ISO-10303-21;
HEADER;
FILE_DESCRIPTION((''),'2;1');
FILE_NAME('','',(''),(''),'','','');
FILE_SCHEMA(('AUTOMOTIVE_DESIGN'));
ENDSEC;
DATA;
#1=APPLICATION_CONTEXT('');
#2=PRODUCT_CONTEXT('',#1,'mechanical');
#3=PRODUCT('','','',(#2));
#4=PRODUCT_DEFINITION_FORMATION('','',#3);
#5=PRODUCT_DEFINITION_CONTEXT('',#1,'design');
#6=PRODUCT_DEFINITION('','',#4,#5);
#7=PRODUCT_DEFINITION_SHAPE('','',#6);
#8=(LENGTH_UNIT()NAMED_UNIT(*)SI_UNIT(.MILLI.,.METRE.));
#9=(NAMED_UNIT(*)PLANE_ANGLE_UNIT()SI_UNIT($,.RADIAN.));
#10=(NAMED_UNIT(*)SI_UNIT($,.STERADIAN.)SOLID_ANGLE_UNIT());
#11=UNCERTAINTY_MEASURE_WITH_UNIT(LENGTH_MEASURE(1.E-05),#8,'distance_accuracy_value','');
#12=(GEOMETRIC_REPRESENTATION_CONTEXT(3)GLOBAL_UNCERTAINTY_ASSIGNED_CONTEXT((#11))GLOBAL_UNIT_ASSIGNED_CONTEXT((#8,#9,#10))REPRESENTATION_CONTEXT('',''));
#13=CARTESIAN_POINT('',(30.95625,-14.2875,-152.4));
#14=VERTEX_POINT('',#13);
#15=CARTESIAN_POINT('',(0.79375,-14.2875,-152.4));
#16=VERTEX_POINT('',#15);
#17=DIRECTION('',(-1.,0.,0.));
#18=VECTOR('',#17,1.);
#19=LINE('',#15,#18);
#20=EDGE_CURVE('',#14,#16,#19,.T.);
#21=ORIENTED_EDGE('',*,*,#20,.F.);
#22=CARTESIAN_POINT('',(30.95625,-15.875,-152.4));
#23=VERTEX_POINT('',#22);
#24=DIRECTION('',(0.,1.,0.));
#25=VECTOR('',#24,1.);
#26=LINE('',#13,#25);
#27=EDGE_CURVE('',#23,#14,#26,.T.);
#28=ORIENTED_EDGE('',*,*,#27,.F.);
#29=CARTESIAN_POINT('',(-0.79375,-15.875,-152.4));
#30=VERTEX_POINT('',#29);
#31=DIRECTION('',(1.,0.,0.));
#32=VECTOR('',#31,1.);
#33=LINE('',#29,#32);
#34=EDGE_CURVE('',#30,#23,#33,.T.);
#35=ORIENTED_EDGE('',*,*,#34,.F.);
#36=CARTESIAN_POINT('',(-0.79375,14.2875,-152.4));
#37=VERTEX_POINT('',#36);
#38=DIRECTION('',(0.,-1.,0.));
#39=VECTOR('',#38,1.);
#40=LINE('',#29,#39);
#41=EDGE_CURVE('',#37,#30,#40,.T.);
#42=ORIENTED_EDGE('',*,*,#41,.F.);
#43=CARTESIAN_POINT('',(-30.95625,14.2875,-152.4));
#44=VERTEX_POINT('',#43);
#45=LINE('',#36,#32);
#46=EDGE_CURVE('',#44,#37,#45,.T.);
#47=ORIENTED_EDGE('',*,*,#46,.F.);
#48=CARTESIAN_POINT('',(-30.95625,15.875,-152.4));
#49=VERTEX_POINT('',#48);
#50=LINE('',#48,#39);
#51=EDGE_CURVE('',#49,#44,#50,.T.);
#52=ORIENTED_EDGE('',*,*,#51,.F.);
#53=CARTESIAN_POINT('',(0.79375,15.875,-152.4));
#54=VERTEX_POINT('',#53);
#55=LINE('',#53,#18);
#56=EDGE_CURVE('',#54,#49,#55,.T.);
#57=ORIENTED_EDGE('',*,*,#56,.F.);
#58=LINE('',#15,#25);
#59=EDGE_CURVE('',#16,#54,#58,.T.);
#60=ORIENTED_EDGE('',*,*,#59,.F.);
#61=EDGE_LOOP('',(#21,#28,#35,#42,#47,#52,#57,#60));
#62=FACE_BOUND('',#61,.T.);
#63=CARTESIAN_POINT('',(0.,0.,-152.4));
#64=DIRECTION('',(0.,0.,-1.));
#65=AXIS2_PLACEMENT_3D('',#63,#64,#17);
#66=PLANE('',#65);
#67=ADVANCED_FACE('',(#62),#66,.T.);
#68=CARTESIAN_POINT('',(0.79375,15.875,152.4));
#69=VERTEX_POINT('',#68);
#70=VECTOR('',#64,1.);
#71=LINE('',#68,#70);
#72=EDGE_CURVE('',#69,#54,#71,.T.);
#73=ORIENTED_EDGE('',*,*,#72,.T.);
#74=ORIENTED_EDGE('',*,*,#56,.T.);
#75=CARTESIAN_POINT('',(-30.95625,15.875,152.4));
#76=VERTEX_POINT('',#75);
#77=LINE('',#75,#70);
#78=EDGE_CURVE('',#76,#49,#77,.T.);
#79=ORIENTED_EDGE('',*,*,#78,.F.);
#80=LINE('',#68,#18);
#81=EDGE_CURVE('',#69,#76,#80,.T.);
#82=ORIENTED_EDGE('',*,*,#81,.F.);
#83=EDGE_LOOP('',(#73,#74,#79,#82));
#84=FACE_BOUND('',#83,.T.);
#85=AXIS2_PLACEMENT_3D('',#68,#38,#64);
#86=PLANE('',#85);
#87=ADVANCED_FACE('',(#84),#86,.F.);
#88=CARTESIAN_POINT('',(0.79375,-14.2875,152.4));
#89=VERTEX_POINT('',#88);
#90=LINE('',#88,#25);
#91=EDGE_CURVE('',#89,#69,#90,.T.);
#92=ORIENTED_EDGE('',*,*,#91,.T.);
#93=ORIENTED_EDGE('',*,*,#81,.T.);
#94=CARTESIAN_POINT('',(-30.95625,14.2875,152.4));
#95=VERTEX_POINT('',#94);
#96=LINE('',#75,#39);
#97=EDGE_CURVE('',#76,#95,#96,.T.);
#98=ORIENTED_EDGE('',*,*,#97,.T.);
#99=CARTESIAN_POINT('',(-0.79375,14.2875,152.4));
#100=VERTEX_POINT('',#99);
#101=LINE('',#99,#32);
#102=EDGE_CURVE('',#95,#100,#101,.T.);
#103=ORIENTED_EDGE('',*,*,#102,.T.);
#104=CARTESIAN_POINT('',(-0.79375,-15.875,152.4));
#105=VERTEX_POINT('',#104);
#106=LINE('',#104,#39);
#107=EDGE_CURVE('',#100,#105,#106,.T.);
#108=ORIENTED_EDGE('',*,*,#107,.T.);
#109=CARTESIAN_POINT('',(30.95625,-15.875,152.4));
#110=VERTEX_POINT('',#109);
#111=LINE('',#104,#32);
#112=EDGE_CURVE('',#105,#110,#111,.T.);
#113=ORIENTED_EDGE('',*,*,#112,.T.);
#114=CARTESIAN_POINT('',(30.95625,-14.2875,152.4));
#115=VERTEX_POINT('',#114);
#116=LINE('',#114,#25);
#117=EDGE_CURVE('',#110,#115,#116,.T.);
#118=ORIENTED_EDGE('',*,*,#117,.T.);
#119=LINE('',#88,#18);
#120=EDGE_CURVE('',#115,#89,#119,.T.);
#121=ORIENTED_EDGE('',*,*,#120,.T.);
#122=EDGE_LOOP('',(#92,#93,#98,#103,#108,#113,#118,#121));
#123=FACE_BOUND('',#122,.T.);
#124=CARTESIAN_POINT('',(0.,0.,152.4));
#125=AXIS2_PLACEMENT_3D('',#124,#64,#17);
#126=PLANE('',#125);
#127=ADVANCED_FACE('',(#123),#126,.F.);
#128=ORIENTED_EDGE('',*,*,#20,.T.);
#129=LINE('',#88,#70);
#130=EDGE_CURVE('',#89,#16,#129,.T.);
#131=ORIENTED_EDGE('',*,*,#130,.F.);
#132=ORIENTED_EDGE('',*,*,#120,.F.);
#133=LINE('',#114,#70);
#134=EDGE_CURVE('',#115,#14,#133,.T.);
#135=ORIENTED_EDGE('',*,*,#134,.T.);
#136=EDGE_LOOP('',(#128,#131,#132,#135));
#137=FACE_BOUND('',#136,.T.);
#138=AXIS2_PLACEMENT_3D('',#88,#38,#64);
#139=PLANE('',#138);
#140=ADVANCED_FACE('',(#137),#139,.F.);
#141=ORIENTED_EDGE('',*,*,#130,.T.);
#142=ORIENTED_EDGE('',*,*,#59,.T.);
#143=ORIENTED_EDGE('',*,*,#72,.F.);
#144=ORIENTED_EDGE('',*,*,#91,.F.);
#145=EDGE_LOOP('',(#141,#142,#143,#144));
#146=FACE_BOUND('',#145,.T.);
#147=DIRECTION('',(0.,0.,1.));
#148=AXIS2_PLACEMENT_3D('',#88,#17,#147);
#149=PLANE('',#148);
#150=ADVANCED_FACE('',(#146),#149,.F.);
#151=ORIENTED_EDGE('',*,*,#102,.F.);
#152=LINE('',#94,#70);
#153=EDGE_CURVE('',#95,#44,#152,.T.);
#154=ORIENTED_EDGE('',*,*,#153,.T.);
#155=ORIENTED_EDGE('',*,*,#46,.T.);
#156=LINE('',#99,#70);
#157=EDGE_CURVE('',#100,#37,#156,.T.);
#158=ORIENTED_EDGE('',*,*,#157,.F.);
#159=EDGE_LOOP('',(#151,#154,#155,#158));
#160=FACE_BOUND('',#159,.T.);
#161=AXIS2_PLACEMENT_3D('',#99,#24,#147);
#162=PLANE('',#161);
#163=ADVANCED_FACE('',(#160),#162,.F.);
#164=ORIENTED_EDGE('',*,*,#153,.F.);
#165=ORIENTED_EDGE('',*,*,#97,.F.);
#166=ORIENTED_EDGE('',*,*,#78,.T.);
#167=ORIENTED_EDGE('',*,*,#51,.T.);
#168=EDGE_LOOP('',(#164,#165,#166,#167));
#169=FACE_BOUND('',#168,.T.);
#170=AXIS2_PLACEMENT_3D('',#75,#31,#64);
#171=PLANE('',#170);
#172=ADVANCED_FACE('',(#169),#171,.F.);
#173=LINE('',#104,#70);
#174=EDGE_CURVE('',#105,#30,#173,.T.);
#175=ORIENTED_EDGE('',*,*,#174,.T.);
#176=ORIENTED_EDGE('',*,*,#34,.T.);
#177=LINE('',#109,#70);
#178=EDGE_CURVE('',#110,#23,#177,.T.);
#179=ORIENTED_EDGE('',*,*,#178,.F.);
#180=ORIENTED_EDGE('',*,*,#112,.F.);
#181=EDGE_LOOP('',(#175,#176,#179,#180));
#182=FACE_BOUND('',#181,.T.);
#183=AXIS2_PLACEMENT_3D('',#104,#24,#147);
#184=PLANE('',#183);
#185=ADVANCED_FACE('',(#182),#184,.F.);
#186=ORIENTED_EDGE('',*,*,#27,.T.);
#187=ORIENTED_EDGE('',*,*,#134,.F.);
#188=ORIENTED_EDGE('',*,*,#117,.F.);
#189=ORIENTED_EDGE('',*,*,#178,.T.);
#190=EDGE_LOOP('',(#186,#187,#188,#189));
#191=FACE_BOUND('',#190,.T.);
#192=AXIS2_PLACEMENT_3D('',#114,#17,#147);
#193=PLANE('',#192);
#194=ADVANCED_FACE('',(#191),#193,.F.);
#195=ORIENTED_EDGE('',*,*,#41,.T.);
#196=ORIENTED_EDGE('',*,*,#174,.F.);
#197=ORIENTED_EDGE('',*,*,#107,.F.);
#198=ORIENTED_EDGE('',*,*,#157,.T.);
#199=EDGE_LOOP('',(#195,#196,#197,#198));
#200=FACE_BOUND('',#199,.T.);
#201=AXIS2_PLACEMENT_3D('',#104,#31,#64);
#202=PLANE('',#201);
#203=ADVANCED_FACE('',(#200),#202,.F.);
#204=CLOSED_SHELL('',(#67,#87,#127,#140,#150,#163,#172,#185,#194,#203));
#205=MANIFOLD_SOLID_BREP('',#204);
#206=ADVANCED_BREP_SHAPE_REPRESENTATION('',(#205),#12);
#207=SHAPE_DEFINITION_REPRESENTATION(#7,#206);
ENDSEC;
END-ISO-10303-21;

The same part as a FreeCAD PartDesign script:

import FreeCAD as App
import Part
import Sketcher
Q = App.Units.Quantity


def add_polygon(sketch, points):
    """Adds a closed chain of lines whose ends are joined by coincident constraints."""
    first, n = sketch.GeometryCount, len(points)
    for a, b in zip(points, points[1:] + points[:1]):
        sketch.addGeometry(Part.LineSegment(App.Vector(*a, 0), App.Vector(*b, 0)), False)
    for i in range(n):
        sketch.addConstraint(Sketcher.Constraint("Coincident", first + i, 2, first + (i + 1) % n, 1))

doc = App.newDocument("Part")
body = doc.addObject("PartDesign::Body", "Body")

# Sketch on XY plane
sketch1 = body.newObject("Sketcher::SketchObject", "Sketch")
sketch1.AttachmentSupport = (doc.getObject("XY_Plane"), [""])
sketch1.MapMode = "FlatFace"
add_polygon(sketch1, [(31, -15.9), (31, -14.3), (0.8, -14.3), (0.8, 15.9), (-31, 15.9), (-31, 14.3), (-0.8, 14.3), (-0.8, -15.9)])  # lines 0-7
sketch1.addConstraint(Sketcher.Constraint("Vertical", 0))
sketch1.addConstraint(Sketcher.Constraint("Horizontal", 1))
sketch1.addConstraint(Sketcher.Constraint("Vertical", 2))
sketch1.addConstraint(Sketcher.Constraint("Horizontal", 3))
sketch1.addConstraint(Sketcher.Constraint("Vertical", 4))
sketch1.addConstraint(Sketcher.Constraint("Horizontal", 5))
sketch1.addConstraint(Sketcher.Constraint("Vertical", 6))
sketch1.addConstraint(Sketcher.Constraint("Horizontal", 7))
sketch1.addConstraint(Sketcher.Constraint("Symmetric", 0, 2, 4, 2, -1, 1))
sketch1.addConstraint(Sketcher.Constraint("Symmetric", 2, 2, 6, 2, -1, 1))
sketch1.addConstraint(Sketcher.Constraint("Equal", 5, 2))
sketch1.addConstraint(Sketcher.Constraint("DistanceX", 3, 2, 3, 1, Q("1.25 in")))
sketch1.addConstraint(Sketcher.Constraint("DistanceX", 1, 2, 1, 1, Q("1.1875 in")))
sketch1.addConstraint(Sketcher.Constraint("DistanceY", 0, 1, 0, 2, Q("0.0625 in")))
pad1 = body.newObject("PartDesign::Pad", "Pad")
pad1.Profile = sketch1
pad1.Type = "TwoLengths"
pad1.Length = Q("6 in")
pad1.Length2 = Q("6 in")

doc.recompute()
